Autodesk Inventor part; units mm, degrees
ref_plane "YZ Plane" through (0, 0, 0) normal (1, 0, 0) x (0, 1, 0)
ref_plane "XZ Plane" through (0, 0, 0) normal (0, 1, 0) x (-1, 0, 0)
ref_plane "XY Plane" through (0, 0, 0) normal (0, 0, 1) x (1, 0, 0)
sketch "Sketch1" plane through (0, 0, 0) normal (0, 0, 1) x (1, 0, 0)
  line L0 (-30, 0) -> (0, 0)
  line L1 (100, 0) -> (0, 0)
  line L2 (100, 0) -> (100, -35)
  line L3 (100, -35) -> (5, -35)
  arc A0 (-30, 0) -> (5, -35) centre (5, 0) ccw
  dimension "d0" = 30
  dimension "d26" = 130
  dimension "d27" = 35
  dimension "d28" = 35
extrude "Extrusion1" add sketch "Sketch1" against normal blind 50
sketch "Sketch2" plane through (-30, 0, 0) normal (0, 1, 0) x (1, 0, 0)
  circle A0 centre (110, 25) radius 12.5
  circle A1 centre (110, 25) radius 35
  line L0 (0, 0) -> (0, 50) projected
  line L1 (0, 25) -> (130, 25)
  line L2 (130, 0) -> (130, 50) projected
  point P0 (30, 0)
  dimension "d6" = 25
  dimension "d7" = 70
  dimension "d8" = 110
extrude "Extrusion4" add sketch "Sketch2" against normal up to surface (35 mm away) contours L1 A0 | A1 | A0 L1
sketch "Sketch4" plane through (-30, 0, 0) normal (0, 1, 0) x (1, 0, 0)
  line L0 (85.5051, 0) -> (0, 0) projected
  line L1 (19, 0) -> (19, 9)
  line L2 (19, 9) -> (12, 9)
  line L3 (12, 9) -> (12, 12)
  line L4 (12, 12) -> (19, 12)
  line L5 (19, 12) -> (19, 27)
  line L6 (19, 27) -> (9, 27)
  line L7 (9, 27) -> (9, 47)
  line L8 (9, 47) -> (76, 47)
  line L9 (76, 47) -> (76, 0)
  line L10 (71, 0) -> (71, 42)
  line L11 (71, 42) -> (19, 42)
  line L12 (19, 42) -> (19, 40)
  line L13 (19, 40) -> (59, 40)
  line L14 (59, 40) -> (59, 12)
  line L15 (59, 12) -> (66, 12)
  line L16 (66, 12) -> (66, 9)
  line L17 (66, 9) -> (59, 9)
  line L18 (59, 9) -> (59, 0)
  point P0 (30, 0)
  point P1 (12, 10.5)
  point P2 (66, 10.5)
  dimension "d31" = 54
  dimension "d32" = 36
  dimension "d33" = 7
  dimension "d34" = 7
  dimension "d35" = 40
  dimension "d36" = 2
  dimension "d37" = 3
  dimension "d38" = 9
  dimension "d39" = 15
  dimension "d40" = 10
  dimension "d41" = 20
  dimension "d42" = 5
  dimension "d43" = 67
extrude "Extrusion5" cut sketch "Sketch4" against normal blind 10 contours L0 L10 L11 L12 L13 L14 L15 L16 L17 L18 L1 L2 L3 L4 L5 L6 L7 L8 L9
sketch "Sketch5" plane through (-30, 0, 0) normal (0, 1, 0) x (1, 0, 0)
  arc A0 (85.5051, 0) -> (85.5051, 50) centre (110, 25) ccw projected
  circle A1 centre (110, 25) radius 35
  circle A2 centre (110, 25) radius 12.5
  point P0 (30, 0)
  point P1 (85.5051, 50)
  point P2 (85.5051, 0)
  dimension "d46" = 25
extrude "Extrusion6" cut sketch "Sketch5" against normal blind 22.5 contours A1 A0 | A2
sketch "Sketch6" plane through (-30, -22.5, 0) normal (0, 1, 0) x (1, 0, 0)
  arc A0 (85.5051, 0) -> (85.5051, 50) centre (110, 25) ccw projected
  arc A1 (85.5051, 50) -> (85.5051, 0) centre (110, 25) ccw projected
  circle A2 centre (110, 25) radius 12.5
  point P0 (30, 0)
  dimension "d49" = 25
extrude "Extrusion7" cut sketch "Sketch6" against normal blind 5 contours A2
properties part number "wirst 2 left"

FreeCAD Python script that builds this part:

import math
import FreeCAD as App
import Part
import Sketcher

V = App.Vector
Q = App.Units.Quantity

doc = App.newDocument("Part")
body = doc.addObject("PartDesign::Body", "Body")

sketch1 = body.newObject("Sketcher::SketchObject", "Sketch")
sketch1.AttachmentSupport = (doc.getObject("XY_Plane"), [""])
sketch1.MapMode = "FlatFace"
sketch1.addGeometry(Part.LineSegment(V(100, 0, 0), V(-30, 0, 0)), False)
sketch1.addGeometry(Part.ArcOfCircle(Part.Circle(V(5, 0, 0), V(0, 0, 1), 35), math.radians(180), math.radians(270)), False)
sketch1.addGeometry(Part.LineSegment(V(5, -35, 0), V(100, -35, 0)), False)
sketch1.addGeometry(Part.LineSegment(V(100, -35, 0), V(100, 0, 0)), False)
sketch1.addConstraint(Sketcher.Constraint("Coincident", 0, 2, 1, 1))
sketch1.addConstraint(Sketcher.Constraint("Tangent", 1, 2, 2, 1))
sketch1.addConstraint(Sketcher.Constraint("Coincident", 2, 2, 3, 1))
sketch1.addConstraint(Sketcher.Constraint("Coincident", 3, 2, 0, 1))
sketch1.addConstraint(Sketcher.Constraint("Horizontal", 0))
sketch1.addConstraint(Sketcher.Constraint("Horizontal", 2))
sketch1.addConstraint(Sketcher.Constraint("Vertical", 3))
sketch1.addConstraint(Sketcher.Constraint("PointOnObject", 1, 3, -1))
sketch1.addConstraint(Sketcher.Constraint("PointOnObject", 0, 2, -1))
sketch1.addConstraint(Sketcher.Constraint("Radius", 1, Q("35 mm")))
sketch1.addConstraint(Sketcher.Constraint("DistanceX", 0, 2, 0, 1, Q("130 mm")))
sketch1.addConstraint(Sketcher.Constraint("DistanceX", 0, 2, -1, 1, Q("30 mm")))
pad1 = body.newObject("PartDesign::Pad", "Pad")
pad1.Profile = sketch1
pad1.Length = 50
pad1.Reversed = True

sketch2 = body.newObject("Sketcher::SketchObject", "Sketch001")
sketch2.AttachmentSupport = (doc.getObject("XZ_Plane"), [""])
sketch2.MapMode = "FlatFace"
sketch2.addGeometry(Part.Circle(V(80, -25, 0), V(0, 0, 1), 35), False)
sketch2.addConstraint(Sketcher.Constraint("Diameter", 0, Q("70 mm")))
sketch2.addConstraint(Sketcher.Constraint("DistanceY", 0, 3, -1, 1, Q("25 mm")))
sketch2.addConstraint(Sketcher.Constraint("DistanceX", -1, 1, 0, 3, Q("80 mm")))
pad2 = body.newObject("PartDesign::Pad", "Pad001")
pad2.Profile = sketch2
pad2.Length = 35

sketch3 = body.newObject("Sketcher::SketchObject", "Sketch002")
sketch3.AttachmentSupport = (doc.getObject("XZ_Plane"), [""])
sketch3.MapMode = "FlatFace"
sketch3.addGeometry(Part.LineSegment(V(41, 0, 0), V(46, 0, 0)), False)
sketch3.addGeometry(Part.LineSegment(V(46, 0, 0), V(46, -47, 0)), False)
sketch3.addGeometry(Part.LineSegment(V(46, -47, 0), V(-21, -47, 0)), False)
sketch3.addGeometry(Part.LineSegment(V(-21, -47, 0), V(-21, -27, 0)), False)
sketch3.addGeometry(Part.LineSegment(V(-21, -27, 0), V(-11, -27, 0)), False)
sketch3.addGeometry(Part.LineSegment(V(-11, -27, 0), V(-11, -12, 0)), False)
sketch3.addGeometry(Part.LineSegment(V(-11, -12, 0), V(-18, -12, 0)), False)
sketch3.addGeometry(Part.LineSegment(V(-18, -12, 0), V(-18, -9, 0)), False)
sketch3.addGeometry(Part.LineSegment(V(-18, -9, 0), V(-11, -9, 0)), False)
sketch3.addGeometry(Part.LineSegment(V(-11, -9, 0), V(-11, 0, 0)), False)
sketch3.addGeometry(Part.LineSegment(V(-11, 0, 0), V(29, 0, 0)), False)
sketch3.addGeometry(Part.LineSegment(V(29, 0, 0), V(29, -9, 0)), False)
sketch3.addGeometry(Part.LineSegment(V(29, -9, 0), V(36, -9, 0)), False)
sketch3.addGeometry(Part.LineSegment(V(36, -9, 0), V(36, -12, 0)), False)
sketch3.addGeometry(Part.LineSegment(V(36, -12, 0), V(29, -12, 0)), False)
sketch3.addGeometry(Part.LineSegment(V(29, -12, 0), V(29, -40, 0)), False)
sketch3.addGeometry(Part.LineSegment(V(29, -40, 0), V(-11, -40, 0)), False)
sketch3.addGeometry(Part.LineSegment(V(-11, -40, 0), V(-11, -42, 0)), False)
sketch3.addGeometry(Part.LineSegment(V(-11, -42, 0), V(41, -42, 0)), False)
sketch3.addGeometry(Part.LineSegment(V(41, -42, 0), V(41, 0, 0)), False)
sketch3.addConstraint(Sketcher.Constraint("Coincident", 0, 2, 1, 1))
sketch3.addConstraint(Sketcher.Constraint("Coincident", 1, 2, 2, 1))
sketch3.addConstraint(Sketcher.Constraint("Coincident", 2, 2, 3, 1))
sketch3.addConstraint(Sketcher.Constraint("Coincident", 3, 2, 4, 1))
sketch3.addConstraint(Sketcher.Constraint("Coincident", 4, 2, 5, 1))
sketch3.addConstraint(Sketcher.Constraint("Coincident", 5, 2, 6, 1))
sketch3.addConstraint(Sketcher.Constraint("Coincident", 6, 2, 7, 1))
sketch3.addConstraint(Sketcher.Constraint("Coincident", 7, 2, 8, 1))
sketch3.addConstraint(Sketcher.Constraint("Coincident", 8, 2, 9, 1))
sketch3.addConstraint(Sketcher.Constraint("Coincident", 9, 2, 10, 1))
sketch3.addConstraint(Sketcher.Constraint("Coincident", 10, 2, 11, 1))
sketch3.addConstraint(Sketcher.Constraint("Coincident", 11, 2, 12, 1))
sketch3.addConstraint(Sketcher.Constraint("Coincident", 12, 2, 13, 1))
sketch3.addConstraint(Sketcher.Constraint("Coincident", 13, 2, 14, 1))
sketch3.addConstraint(Sketcher.Constraint("Coincident", 14, 2, 15, 1))
sketch3.addConstraint(Sketcher.Constraint("Coincident", 15, 2, 16, 1))
sketch3.addConstraint(Sketcher.Constraint("Coincident", 16, 2, 17, 1))
sketch3.addConstraint(Sketcher.Constraint("Coincident", 17, 2, 18, 1))
sketch3.addConstraint(Sketcher.Constraint("Coincident", 18, 2, 19, 1))
sketch3.addConstraint(Sketcher.Constraint("Coincident", 19, 2, 0, 1))
sketch3.addConstraint(Sketcher.Constraint("Horizontal", 0))
sketch3.addConstraint(Sketcher.Constraint("Vertical", 1))
sketch3.addConstraint(Sketcher.Constraint("Horizontal", 2))
sketch3.addConstraint(Sketcher.Constraint("Vertical", 3))
sketch3.addConstraint(Sketcher.Constraint("Horizontal", 4))
sketch3.addConstraint(Sketcher.Constraint("Vertical", 5))
sketch3.addConstraint(Sketcher.Constraint("Horizontal", 6))
sketch3.addConstraint(Sketcher.Constraint("Vertical", 7))
sketch3.addConstraint(Sketcher.Constraint("Horizontal", 8))
sketch3.addConstraint(Sketcher.Constraint("Vertical", 9))
sketch3.addConstraint(Sketcher.Constraint("Horizontal", 10))
sketch3.addConstraint(Sketcher.Constraint("Vertical", 11))
sketch3.addConstraint(Sketcher.Constraint("Horizontal", 12))
sketch3.addConstraint(Sketcher.Constraint("Vertical", 13))
sketch3.addConstraint(Sketcher.Constraint("Horizontal", 14))
sketch3.addConstraint(Sketcher.Constraint("Vertical", 15))
sketch3.addConstraint(Sketcher.Constraint("Horizontal", 16))
sketch3.addConstraint(Sketcher.Constraint("Vertical", 17))
sketch3.addConstraint(Sketcher.Constraint("Horizontal", 18))
sketch3.addConstraint(Sketcher.Constraint("Vertical", 19))
sketch3.addConstraint(Sketcher.Constraint("PointOnObject", 0, 2, -1))
sketch3.addConstraint(Sketcher.Constraint("PointOnObject", 9, 2, -1))
sketch3.addConstraint(Sketcher.Constraint("Horizontal", 8, 2, 11, 2))
sketch3.addConstraint(Sketcher.Constraint("Horizontal", 6, 2, 13, 2))
sketch3.addConstraint(Sketcher.Constraint("Vertical", 5, 2, 8, 2))
sketch3.addConstraint(Sketcher.Constraint("Vertical", 11, 2, 14, 2))
sketch3.addConstraint(Sketcher.Constraint("Vertical", 9, 2, 16, 2))
sketch3.addConstraint(Sketcher.Constraint("Equal", 8, 12))
sketch3.addConstraint(Sketcher.Constraint("DistanceX", 0, 1, 0, 2, Q("5 mm")))
sketch3.addConstraint(Sketcher.Constraint("DistanceX", 2, 2, 2, 1, Q("67 mm")))
sketch3.addConstraint(Sketcher.Constraint("DistanceX", 4, 1, 4, 2, Q("10 mm")))
sketch3.addConstraint(Sketcher.Constraint("DistanceX", 6, 2, 6, 1, Q("7 mm")))
sketch3.addConstraint(Sketcher.Constraint("DistanceX", 10, 1, 10, 2, Q("40 mm")))
sketch3.addConstraint(Sketcher.Constraint("DistanceY", 3, 1, 3, 2, Q("20 mm")))
sketch3.addConstraint(Sketcher.Constraint("DistanceY", 5, 1, 5, 2, Q("15 mm")))
sketch3.addConstraint(Sketcher.Constraint("DistanceY", 7, 1, 7, 2, Q("3 mm")))
sketch3.addConstraint(Sketcher.Constraint("DistanceY", 9, 1, 9, 2, Q("9 mm")))
sketch3.addConstraint(Sketcher.Constraint("DistanceY", 17, 2, 17, 1, Q("2 mm")))
sketch3.addConstraint(Sketcher.Constraint("DistanceX", -1, 1, 12, 2, Q("36 mm")))
sketch3.addConstraint(Sketcher.Constraint("DistanceY", 15, 2, -1, 1, Q("40 mm")))
pocket1 = body.newObject("PartDesign::Pocket", "Pocket")
pocket1.Profile = sketch3
pocket1.Length = 10
pocket1.Reversed = True

sketch4 = body.newObject("Sketcher::SketchObject", "Sketch003")
sketch4.AttachmentSupport = (doc.getObject("XZ_Plane"), [""])
sketch4.MapMode = "FlatFace"
sketch4.addGeometry(Part.Circle(V(80, -25, 0), V(0, 0, 1), 35.000002), False)
sketch4.addConstraint(Sketcher.Constraint("Diameter", 0, Q("70 mm")))
sketch4.addConstraint(Sketcher.Constraint("DistanceY", 0, 3, -1, 1, Q("25 mm")))
sketch4.addConstraint(Sketcher.Constraint("DistanceX", -1, 1, 0, 3, Q("80 mm")))
pocket2 = body.newObject("PartDesign::Pocket", "Pocket001")
pocket2.Profile = sketch4
pocket2.Length = 22.5
pocket2.Reversed = True

sketch5 = body.newObject("Sketcher::SketchObject", "Sketch004")
sketch5.AttachmentSupport = (doc.getObject("XZ_Plane"), [""])
sketch5.MapMode = "FlatFace"
sketch5.AttachmentOffset = App.Placement(V(0, 0, 22.5), App.Rotation())
sketch5.addGeometry(Part.Circle(V(80, -25, 0), V(0, 0, 1), 12.5), False)
sketch5.addConstraint(Sketcher.Constraint("Diameter", 0, Q("25 mm")))
sketch5.addConstraint(Sketcher.Constraint("DistanceY", 0, 3, -1, 1, Q("25 mm")))
sketch5.addConstraint(Sketcher.Constraint("DistanceX", -1, 1, 0, 3, Q("80 mm")))
pocket3 = body.newObject("PartDesign::Pocket", "Pocket002")
pocket3.Profile = sketch5
pocket3.Length = 5
pocket3.Reversed = True

doc.recompute()
